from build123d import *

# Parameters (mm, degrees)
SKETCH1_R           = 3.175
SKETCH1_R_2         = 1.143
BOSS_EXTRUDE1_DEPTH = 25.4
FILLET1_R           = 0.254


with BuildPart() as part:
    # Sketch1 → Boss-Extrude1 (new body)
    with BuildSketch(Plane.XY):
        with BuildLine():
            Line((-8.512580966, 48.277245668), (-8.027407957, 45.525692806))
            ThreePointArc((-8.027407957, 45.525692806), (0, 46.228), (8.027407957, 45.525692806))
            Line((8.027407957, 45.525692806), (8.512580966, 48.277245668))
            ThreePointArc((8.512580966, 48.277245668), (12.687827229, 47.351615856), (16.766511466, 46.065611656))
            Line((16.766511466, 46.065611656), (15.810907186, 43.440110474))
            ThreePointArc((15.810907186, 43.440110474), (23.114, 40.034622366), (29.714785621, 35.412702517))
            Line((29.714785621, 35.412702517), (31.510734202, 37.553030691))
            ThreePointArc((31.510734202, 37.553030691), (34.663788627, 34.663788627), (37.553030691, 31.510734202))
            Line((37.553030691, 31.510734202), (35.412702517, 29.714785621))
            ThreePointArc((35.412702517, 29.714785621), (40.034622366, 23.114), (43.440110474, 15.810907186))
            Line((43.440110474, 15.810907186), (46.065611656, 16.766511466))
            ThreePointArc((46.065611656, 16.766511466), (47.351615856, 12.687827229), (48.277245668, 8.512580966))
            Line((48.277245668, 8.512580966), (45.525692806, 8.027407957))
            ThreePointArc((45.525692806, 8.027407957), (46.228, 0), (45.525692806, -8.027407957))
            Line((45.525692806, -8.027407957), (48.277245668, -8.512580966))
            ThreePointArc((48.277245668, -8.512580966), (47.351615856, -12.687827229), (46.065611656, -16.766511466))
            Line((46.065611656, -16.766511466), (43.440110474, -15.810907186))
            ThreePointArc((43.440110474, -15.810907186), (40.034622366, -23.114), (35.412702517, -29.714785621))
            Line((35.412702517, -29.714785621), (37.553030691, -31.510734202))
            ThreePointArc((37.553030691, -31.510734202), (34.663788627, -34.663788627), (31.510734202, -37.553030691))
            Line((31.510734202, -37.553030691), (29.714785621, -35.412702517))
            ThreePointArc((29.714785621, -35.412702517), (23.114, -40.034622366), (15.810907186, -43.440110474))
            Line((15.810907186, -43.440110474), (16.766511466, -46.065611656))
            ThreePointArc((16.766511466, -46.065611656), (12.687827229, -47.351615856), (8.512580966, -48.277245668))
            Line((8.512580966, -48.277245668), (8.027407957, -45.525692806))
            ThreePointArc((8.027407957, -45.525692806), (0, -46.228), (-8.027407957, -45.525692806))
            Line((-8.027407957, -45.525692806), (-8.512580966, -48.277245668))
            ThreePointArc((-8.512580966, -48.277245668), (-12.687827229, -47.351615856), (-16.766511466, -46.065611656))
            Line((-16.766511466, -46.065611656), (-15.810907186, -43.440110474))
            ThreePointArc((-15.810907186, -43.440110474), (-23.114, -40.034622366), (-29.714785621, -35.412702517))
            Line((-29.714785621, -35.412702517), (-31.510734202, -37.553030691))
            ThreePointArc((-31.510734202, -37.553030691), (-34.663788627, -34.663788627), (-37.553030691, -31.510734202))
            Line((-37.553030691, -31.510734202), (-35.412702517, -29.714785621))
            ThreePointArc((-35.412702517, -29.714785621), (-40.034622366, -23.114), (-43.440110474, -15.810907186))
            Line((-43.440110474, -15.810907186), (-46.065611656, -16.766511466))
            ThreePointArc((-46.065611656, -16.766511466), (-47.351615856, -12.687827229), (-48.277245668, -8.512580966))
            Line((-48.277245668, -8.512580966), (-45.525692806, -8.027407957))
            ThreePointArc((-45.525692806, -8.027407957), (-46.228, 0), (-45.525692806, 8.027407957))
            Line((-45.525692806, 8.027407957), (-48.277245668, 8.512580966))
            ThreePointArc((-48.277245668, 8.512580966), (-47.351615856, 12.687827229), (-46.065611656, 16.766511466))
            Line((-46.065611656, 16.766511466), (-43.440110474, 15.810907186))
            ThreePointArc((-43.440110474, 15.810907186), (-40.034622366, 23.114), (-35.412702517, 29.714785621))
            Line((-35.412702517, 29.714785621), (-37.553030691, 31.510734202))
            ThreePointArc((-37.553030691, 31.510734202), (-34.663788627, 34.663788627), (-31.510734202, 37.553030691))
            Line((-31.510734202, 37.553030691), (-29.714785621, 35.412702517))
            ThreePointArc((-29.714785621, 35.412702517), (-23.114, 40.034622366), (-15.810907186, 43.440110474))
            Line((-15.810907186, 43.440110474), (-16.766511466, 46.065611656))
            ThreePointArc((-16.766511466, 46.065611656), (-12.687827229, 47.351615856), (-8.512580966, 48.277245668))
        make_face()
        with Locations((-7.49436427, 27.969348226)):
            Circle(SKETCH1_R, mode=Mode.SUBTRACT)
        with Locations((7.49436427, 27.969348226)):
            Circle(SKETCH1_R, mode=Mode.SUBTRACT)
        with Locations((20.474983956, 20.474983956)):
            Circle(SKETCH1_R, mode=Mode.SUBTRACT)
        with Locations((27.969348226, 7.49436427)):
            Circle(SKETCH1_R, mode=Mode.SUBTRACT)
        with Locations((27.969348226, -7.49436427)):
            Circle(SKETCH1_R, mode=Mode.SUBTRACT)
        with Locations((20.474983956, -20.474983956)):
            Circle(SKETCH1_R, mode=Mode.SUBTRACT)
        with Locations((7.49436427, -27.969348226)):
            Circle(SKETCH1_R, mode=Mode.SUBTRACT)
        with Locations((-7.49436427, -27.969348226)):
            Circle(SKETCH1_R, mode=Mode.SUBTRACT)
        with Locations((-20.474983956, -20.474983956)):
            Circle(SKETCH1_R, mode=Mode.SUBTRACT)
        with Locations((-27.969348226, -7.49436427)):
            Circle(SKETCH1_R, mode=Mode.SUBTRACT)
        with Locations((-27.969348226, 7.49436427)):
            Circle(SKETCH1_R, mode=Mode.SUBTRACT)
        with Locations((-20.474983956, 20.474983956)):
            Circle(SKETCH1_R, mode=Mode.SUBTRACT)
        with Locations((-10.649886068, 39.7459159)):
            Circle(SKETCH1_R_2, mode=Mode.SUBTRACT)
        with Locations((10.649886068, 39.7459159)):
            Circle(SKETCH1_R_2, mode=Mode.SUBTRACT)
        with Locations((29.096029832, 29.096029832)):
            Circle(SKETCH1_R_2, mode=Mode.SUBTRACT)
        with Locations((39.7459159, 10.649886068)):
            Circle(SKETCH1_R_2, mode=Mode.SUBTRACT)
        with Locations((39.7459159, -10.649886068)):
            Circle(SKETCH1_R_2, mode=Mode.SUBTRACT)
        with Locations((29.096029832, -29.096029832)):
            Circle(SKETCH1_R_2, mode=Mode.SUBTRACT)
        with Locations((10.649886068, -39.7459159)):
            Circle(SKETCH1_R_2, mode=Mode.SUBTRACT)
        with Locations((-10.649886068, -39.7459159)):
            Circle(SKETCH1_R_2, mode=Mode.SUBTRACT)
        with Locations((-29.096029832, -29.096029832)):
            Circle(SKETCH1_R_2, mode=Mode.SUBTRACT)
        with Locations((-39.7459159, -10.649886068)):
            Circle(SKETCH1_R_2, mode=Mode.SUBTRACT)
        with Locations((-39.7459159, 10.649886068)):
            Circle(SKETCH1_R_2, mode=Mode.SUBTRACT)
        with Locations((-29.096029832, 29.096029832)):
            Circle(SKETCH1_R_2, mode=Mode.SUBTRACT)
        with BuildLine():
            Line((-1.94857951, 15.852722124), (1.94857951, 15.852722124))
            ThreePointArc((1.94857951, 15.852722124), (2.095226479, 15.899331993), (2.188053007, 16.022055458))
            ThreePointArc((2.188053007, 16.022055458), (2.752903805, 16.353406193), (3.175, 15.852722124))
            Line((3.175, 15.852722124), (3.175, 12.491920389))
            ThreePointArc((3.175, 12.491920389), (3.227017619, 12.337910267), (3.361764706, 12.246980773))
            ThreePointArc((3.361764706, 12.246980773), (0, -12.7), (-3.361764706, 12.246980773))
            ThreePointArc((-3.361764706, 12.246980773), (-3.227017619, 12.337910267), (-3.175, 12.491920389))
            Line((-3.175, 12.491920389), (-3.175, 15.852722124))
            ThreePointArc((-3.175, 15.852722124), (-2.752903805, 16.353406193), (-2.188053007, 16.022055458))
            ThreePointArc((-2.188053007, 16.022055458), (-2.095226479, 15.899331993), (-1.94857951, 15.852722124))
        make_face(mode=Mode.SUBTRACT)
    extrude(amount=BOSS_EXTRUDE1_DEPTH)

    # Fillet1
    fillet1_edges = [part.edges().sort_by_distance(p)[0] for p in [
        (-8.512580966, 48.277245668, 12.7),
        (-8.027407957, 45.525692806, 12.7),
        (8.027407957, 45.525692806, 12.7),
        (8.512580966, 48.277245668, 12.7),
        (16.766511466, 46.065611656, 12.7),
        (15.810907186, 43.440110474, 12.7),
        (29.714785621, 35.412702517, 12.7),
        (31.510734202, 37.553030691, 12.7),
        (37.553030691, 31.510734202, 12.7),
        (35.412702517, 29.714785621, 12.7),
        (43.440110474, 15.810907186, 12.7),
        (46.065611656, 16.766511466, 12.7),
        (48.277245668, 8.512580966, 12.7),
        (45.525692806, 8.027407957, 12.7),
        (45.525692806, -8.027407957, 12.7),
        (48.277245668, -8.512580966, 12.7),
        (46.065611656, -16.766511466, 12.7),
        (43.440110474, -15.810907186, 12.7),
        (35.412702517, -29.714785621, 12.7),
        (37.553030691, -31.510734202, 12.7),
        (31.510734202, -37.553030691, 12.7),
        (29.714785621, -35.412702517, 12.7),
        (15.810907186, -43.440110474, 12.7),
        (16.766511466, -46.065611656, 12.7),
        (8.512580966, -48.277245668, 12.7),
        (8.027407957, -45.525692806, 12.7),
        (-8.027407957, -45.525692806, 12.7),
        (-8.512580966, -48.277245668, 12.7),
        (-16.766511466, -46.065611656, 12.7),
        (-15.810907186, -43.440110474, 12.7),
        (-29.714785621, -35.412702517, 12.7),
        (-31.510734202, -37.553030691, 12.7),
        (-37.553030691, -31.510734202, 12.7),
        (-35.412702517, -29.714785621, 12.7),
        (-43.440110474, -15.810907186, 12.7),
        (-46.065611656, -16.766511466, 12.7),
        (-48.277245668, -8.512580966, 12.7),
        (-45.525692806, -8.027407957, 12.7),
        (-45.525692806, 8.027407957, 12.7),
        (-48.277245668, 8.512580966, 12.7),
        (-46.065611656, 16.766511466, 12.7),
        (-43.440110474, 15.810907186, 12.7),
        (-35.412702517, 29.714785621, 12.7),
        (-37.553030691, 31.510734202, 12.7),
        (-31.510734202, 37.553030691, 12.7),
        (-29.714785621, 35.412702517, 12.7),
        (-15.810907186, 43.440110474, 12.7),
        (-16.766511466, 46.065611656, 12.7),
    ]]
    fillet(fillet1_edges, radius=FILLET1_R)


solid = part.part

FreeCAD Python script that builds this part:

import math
import FreeCAD as App
import Part
import Sketcher
Q = App.Units.Quantity


def edges_at(feature, points):
    """Names of the edges that pass closest to the given points."""
    edges = feature.Shape.Edges
    near = lambda p: min(range(len(edges)), key=lambda i: edges[i].distToShape(Part.Vertex(*p))[0])
    return sorted({f"Edge{near(p) + 1}" for p in points})

doc = App.newDocument("Part")
body = doc.addObject("PartDesign::Body", "Body")

sketch1 = doc.addObject("Sketcher::SketchObject", "Sketch")
body.addObject(sketch1)
sketch1.AttachmentSupport = (doc.XY_Plane, [""])
sketch1.MapMode = "FlatFace"
sketch1.addGeometry([
    Part.LineSegment(App.Vector(-8.03, 45.53, 0), App.Vector(-8.51, 48.28, 0)),
    Part.ArcOfCircle(Part.Circle(App.Vector(0, 0, 0), App.Vector(0, 0, 1), 49.02), math.radians(100), math.radians(110)),
    Part.LineSegment(App.Vector(-16.77, 46.07, 0), App.Vector(-15.81, 43.44, 0)),
    Part.ArcOfCircle(Part.Circle(App.Vector(0, 0, 0), App.Vector(0, 0, 1), 46.23), math.radians(110), math.radians(130)),
    Part.LineSegment(App.Vector(-29.71, 35.41, 0), App.Vector(-31.51, 37.55, 0)),
    Part.ArcOfCircle(Part.Circle(App.Vector(0, 0, 0), App.Vector(0, 0, 1), 49.02), math.radians(130), math.radians(140)),
    Part.LineSegment(App.Vector(-37.55, 31.51, 0), App.Vector(-35.41, 29.71, 0)),
    Part.ArcOfCircle(Part.Circle(App.Vector(0, 0, 0), App.Vector(0, 0, 1), 46.23), math.radians(140), math.radians(160)),
    Part.LineSegment(App.Vector(-43.44, 15.81, 0), App.Vector(-46.07, 16.77, 0)),
    Part.ArcOfCircle(Part.Circle(App.Vector(0, 0, 0), App.Vector(0, 0, 1), 49.02), math.radians(160), math.radians(170)),
    Part.LineSegment(App.Vector(-48.28, 8.51, 0), App.Vector(-45.53, 8.03, 0)),
    Part.ArcOfCircle(Part.Circle(App.Vector(0, 0, 0), App.Vector(0, 0, 1), 46.23), math.radians(170), math.radians(190)),
    Part.LineSegment(App.Vector(-45.53, -8.03, 0), App.Vector(-48.28, -8.51, 0)),
    Part.ArcOfCircle(Part.Circle(App.Vector(0, 0, 0), App.Vector(0, 0, 1), 49.02), math.radians(-170), math.radians(-160)),
    Part.LineSegment(App.Vector(-46.07, -16.77, 0), App.Vector(-43.44, -15.81, 0)),
    Part.ArcOfCircle(Part.Circle(App.Vector(0, 0, 0), App.Vector(0, 0, 1), 46.23), math.radians(-160), math.radians(-140)),
    Part.LineSegment(App.Vector(-35.41, -29.71, 0), App.Vector(-37.55, -31.51, 0)),
    Part.ArcOfCircle(Part.Circle(App.Vector(0, 0, 0), App.Vector(0, 0, 1), 49.02), math.radians(-140), math.radians(-130)),
    Part.LineSegment(App.Vector(-31.51, -37.55, 0), App.Vector(-29.71, -35.41, 0)),
    Part.ArcOfCircle(Part.Circle(App.Vector(0, 0, 0), App.Vector(0, 0, 1), 46.23), math.radians(-130), math.radians(-110)),
    Part.LineSegment(App.Vector(-15.81, -43.44, 0), App.Vector(-16.77, -46.07, 0)),
    Part.ArcOfCircle(Part.Circle(App.Vector(0, 0, 0), App.Vector(0, 0, 1), 49.02), math.radians(-110), math.radians(-100)),
    Part.LineSegment(App.Vector(-8.51, -48.28, 0), App.Vector(-8.03, -45.53, 0)),
    Part.ArcOfCircle(Part.Circle(App.Vector(0, 0, 0), App.Vector(0, 0, 1), 46.23), math.radians(-100), math.radians(-80)),
    Part.LineSegment(App.Vector(8.03, -45.53, 0), App.Vector(8.51, -48.28, 0)),
    Part.ArcOfCircle(Part.Circle(App.Vector(0, 0, 0), App.Vector(0, 0, 1), 49.02), math.radians(-80), math.radians(-70)),
    Part.LineSegment(App.Vector(16.77, -46.07, 0), App.Vector(15.81, -43.44, 0)),
    Part.ArcOfCircle(Part.Circle(App.Vector(0, 0, 0), App.Vector(0, 0, 1), 46.23), math.radians(-70), math.radians(-50)),
    Part.LineSegment(App.Vector(29.71, -35.41, 0), App.Vector(31.51, -37.55, 0)),
    Part.ArcOfCircle(Part.Circle(App.Vector(0, 0, 0), App.Vector(0, 0, 1), 49.02), math.radians(-50), math.radians(-40)),
    Part.LineSegment(App.Vector(37.55, -31.51, 0), App.Vector(35.41, -29.71, 0)),
    Part.ArcOfCircle(Part.Circle(App.Vector(0, 0, 0), App.Vector(0, 0, 1), 46.23), math.radians(-40), math.radians(-20)),
    Part.LineSegment(App.Vector(43.44, -15.81, 0), App.Vector(46.07, -16.77, 0)),
    Part.ArcOfCircle(Part.Circle(App.Vector(0, 0, 0), App.Vector(0, 0, 1), 49.02), math.radians(-20), math.radians(-10)),
    Part.LineSegment(App.Vector(48.28, -8.51, 0), App.Vector(45.53, -8.03, 0)),
    Part.ArcOfCircle(Part.Circle(App.Vector(0, 0, 0), App.Vector(0, 0, 1), 46.23), math.radians(-10), math.radians(10)),
    Part.LineSegment(App.Vector(45.53, 8.03, 0), App.Vector(48.28, 8.51, 0)),
    Part.ArcOfCircle(Part.Circle(App.Vector(0, 0, 0), App.Vector(0, 0, 1), 49.02), math.radians(10), math.radians(20)),
    Part.LineSegment(App.Vector(46.07, 16.77, 0), App.Vector(43.44, 15.81, 0)),
    Part.ArcOfCircle(Part.Circle(App.Vector(0, 0, 0), App.Vector(0, 0, 1), 46.23), math.radians(20), math.radians(40)),
    Part.LineSegment(App.Vector(35.41, 29.71, 0), App.Vector(37.55, 31.51, 0)),
    Part.ArcOfCircle(Part.Circle(App.Vector(0, 0, 0), App.Vector(0, 0, 1), 49.02), math.radians(40), math.radians(50)),
    Part.LineSegment(App.Vector(31.51, 37.55, 0), App.Vector(29.71, 35.41, 0)),
    Part.ArcOfCircle(Part.Circle(App.Vector(0, 0, 0), App.Vector(0, 0, 1), 46.23), math.radians(50), math.radians(70)),
    Part.LineSegment(App.Vector(15.81, 43.44, 0), App.Vector(16.77, 46.07, 0)),
    Part.ArcOfCircle(Part.Circle(App.Vector(0, 0, 0), App.Vector(0, 0, 1), 49.02), math.radians(70), math.radians(80)),
    Part.LineSegment(App.Vector(8.51, 48.28, 0), App.Vector(8.03, 45.53, 0)),
    Part.ArcOfCircle(Part.Circle(App.Vector(0, 0, 0), App.Vector(0, 0, 1), 46.23), math.radians(80), math.radians(100)),
    Part.Circle(App.Vector(29.1, -29.1, 0), App.Vector(0, 0, 1), 1.14),
    Part.Circle(App.Vector(20.47, -20.47, 0), App.Vector(0, 0, 1), 3.17),
    Part.Circle(App.Vector(10.65, -39.75, 0), App.Vector(0, 0, 1), 1.14),
    Part.Circle(App.Vector(7.49, -27.97, 0), App.Vector(0, 0, 1), 3.17),
    Part.Circle(App.Vector(39.75, -10.65, 0), App.Vector(0, 0, 1), 1.14),
    Part.Circle(App.Vector(27.97, -7.49, 0), App.Vector(0, 0, 1), 3.17),
    Part.Circle(App.Vector(-10.65, -39.75, 0), App.Vector(0, 0, 1), 1.14),
    Part.Circle(App.Vector(-7.49, -27.97, 0), App.Vector(0, 0, 1), 3.17),
    Part.Circle(App.Vector(-29.1, -29.1, 0), App.Vector(0, 0, 1), 1.14),
    Part.Circle(App.Vector(-20.47, -20.47, 0), App.Vector(0, 0, 1), 3.17),
    Part.Circle(App.Vector(-39.75, -10.65, 0), App.Vector(0, 0, 1), 1.14),
    Part.Circle(App.Vector(-27.97, -7.49, 0), App.Vector(0, 0, 1), 3.17),
    Part.Circle(App.Vector(27.97, 7.49, 0), App.Vector(0, 0, 1), 3.17),
    Part.Circle(App.Vector(39.75, 10.65, 0), App.Vector(0, 0, 1), 1.14),
    Part.Circle(App.Vector(20.47, 20.47, 0), App.Vector(0, 0, 1), 3.17),
    Part.Circle(App.Vector(29.1, 29.1, 0), App.Vector(0, 0, 1), 1.14),
    Part.Circle(App.Vector(7.49, 27.97, 0), App.Vector(0, 0, 1), 3.17),
    Part.Circle(App.Vector(10.65, 39.75, 0), App.Vector(0, 0, 1), 1.14),
    Part.LineSegment(App.Vector(-1.95, 15.85, 0), App.Vector(1.95, 15.85, 0)),
    Part.ArcOfCircle(Part.Circle(App.Vector(1.95, 16.11, 0), App.Vector(0, 0, 1), 0.25), math.radians(-90), math.radians(-19)),
    Part.ArcOfCircle(Part.Circle(App.Vector(2.67, 15.85, 0), App.Vector(0, 0, 1), 0.51), math.radians(0), math.radians(161)),
    Part.LineSegment(App.Vector(3.17, 15.85, 0), App.Vector(3.17, 12.49, 0)),
    Part.ArcOfCircle(Part.Circle(App.Vector(3.43, 12.49, 0), App.Vector(0, 0, 1), 0.25), math.radians(-180), math.radians(-105)),
    Part.ArcOfCircle(Part.Circle(App.Vector(0, 0, 0), App.Vector(0, 0, 1), 12.7), math.radians(105), math.radians(435)),
    Part.ArcOfCircle(Part.Circle(App.Vector(-3.43, 12.49, 0), App.Vector(0, 0, 1), 0.25), math.radians(-75), math.radians(0)),
    Part.LineSegment(App.Vector(-3.17, 12.49, 0), App.Vector(-3.17, 15.85, 0)),
    Part.ArcOfCircle(Part.Circle(App.Vector(-2.67, 15.85, 0), App.Vector(0, 0, 1), 0.51), math.radians(19), math.radians(180)),
    Part.ArcOfCircle(Part.Circle(App.Vector(-1.95, 16.11, 0), App.Vector(0, 0, 1), 0.25), math.radians(-161), math.radians(-90)),
    Part.Circle(App.Vector(-27.97, 7.49, 0), App.Vector(0, 0, 1), 3.17),
    Part.Circle(App.Vector(-39.75, 10.65, 0), App.Vector(0, 0, 1), 1.14),
    Part.Circle(App.Vector(-7.49, 27.97, 0), App.Vector(0, 0, 1), 3.17),
    Part.Circle(App.Vector(-10.65, 39.75, 0), App.Vector(0, 0, 1), 1.14),
    Part.Circle(App.Vector(-20.47, 20.47, 0), App.Vector(0, 0, 1), 3.17),
    Part.Circle(App.Vector(-29.1, 29.1, 0), App.Vector(0, 0, 1), 1.14),
], False)
sketch1.addConstraint([
    Sketcher.Constraint("Coincident", 0, 2, 1, 1),
    Sketcher.Constraint("Coincident", 1, 2, 2, 1),
    Sketcher.Constraint("Coincident", 2, 2, 3, 1),
    Sketcher.Constraint("Coincident", 3, 2, 4, 1),
    Sketcher.Constraint("Coincident", 4, 2, 5, 1),
    Sketcher.Constraint("Coincident", 5, 2, 6, 1),
    Sketcher.Constraint("Coincident", 6, 2, 7, 1),
    Sketcher.Constraint("Coincident", 7, 2, 8, 1),
    Sketcher.Constraint("Coincident", 8, 2, 9, 1),
    Sketcher.Constraint("Coincident", 9, 2, 10, 1),
    Sketcher.Constraint("Coincident", 10, 2, 11, 1),
    Sketcher.Constraint("Coincident", 11, 2, 12, 1),
    Sketcher.Constraint("Coincident", 12, 2, 13, 1),
    Sketcher.Constraint("Coincident", 13, 2, 14, 1),
    Sketcher.Constraint("Coincident", 14, 2, 15, 1),
    Sketcher.Constraint("Coincident", 15, 2, 16, 1),
    Sketcher.Constraint("Coincident", 16, 2, 17, 1),
    Sketcher.Constraint("Coincident", 17, 2, 18, 1),
    Sketcher.Constraint("Coincident", 18, 2, 19, 1),
    Sketcher.Constraint("Coincident", 19, 2, 20, 1),
    Sketcher.Constraint("Coincident", 20, 2, 21, 1),
    Sketcher.Constraint("Coincident", 21, 2, 22, 1),
    Sketcher.Constraint("Coincident", 22, 2, 23, 1),
    Sketcher.Constraint("Coincident", 23, 2, 24, 1),
    Sketcher.Constraint("Coincident", 24, 2, 25, 1),
    Sketcher.Constraint("Coincident", 25, 2, 26, 1),
    Sketcher.Constraint("Coincident", 26, 2, 27, 1),
    Sketcher.Constraint("Coincident", 27, 2, 28, 1),
    Sketcher.Constraint("Coincident", 28, 2, 29, 1),
    Sketcher.Constraint("Coincident", 29, 2, 30, 1),
    Sketcher.Constraint("Coincident", 30, 2, 31, 1),
    Sketcher.Constraint("Coincident", 31, 2, 32, 1),
    Sketcher.Constraint("Coincident", 32, 2, 33, 1),
    Sketcher.Constraint("Coincident", 33, 2, 34, 1),
    Sketcher.Constraint("Coincident", 34, 2, 35, 1),
    Sketcher.Constraint("Coincident", 35, 2, 36, 1),
    Sketcher.Constraint("Coincident", 36, 2, 37, 1),
    Sketcher.Constraint("Coincident", 37, 2, 38, 1),
    Sketcher.Constraint("Coincident", 38, 2, 39, 1),
    Sketcher.Constraint("Coincident", 39, 2, 40, 1),
    Sketcher.Constraint("Coincident", 40, 2, 41, 1),
    Sketcher.Constraint("Coincident", 41, 2, 42, 1),
    Sketcher.Constraint("Coincident", 42, 2, 43, 1),
    Sketcher.Constraint("Coincident", 43, 2, 44, 1),
    Sketcher.Constraint("Coincident", 44, 2, 45, 1),
    Sketcher.Constraint("Coincident", 45, 2, 46, 1),
    Sketcher.Constraint("Coincident", 46, 2, 47, 1),
    Sketcher.Constraint("Coincident", 47, 2, 0, 1),
    Sketcher.Constraint("Tangent", 66, 2, 67, 1),
    Sketcher.Constraint("Tangent", 67, 2, 68, 2),
    Sketcher.Constraint("Tangent", 68, 1, 69, 1),
    Sketcher.Constraint("Tangent", 69, 2, 70, 1),
    Sketcher.Constraint("Tangent", 70, 2, 71, 2),
    Sketcher.Constraint("Tangent", 71, 1, 72, 1),
    Sketcher.Constraint("Tangent", 72, 2, 73, 1),
    Sketcher.Constraint("Tangent", 73, 2, 74, 2),
    Sketcher.Constraint("Tangent", 74, 1, 75, 1),
    Sketcher.Constraint("Tangent", 75, 2, 66, 1),
    Sketcher.Constraint("Horizontal", 66),
    Sketcher.Constraint("Vertical", 69),
    Sketcher.Constraint("Vertical", 73),
    Sketcher.Constraint("Coincident", 1, 3, -1, 1),
    Sketcher.Constraint("Coincident", 3, 3, -1, 1),
    Sketcher.Constraint("Coincident", 5, 3, -1, 1),
    Sketcher.Constraint("Coincident", 7, 3, -1, 1),
    Sketcher.Constraint("Coincident", 9, 3, -1, 1),
    Sketcher.Constraint("Coincident", 11, 3, -1, 1),
    Sketcher.Constraint("Coincident", 13, 3, -1, 1),
    Sketcher.Constraint("Coincident", 15, 3, -1, 1),
    Sketcher.Constraint("Coincident", 17, 3, -1, 1),
    Sketcher.Constraint("Coincident", 19, 3, -1, 1),
    Sketcher.Constraint("Coincident", 21, 3, -1, 1),
    Sketcher.Constraint("Coincident", 23, 3, -1, 1),
    Sketcher.Constraint("Coincident", 25, 3, -1, 1),
    Sketcher.Constraint("Coincident", 27, 3, -1, 1),
    Sketcher.Constraint("Coincident", 29, 3, -1, 1),
    Sketcher.Constraint("Coincident", 31, 3, -1, 1),
    Sketcher.Constraint("Coincident", 33, 3, -1, 1),
    Sketcher.Constraint("Coincident", 35, 3, -1, 1),
    Sketcher.Constraint("Coincident", 37, 3, -1, 1),
    Sketcher.Constraint("Coincident", 39, 3, -1, 1),
    Sketcher.Constraint("Coincident", 41, 3, -1, 1),
    Sketcher.Constraint("Coincident", 43, 3, -1, 1),
    Sketcher.Constraint("Coincident", 45, 3, -1, 1),
    Sketcher.Constraint("Coincident", 47, 3, -1, 1),
    Sketcher.Constraint("Coincident", 71, 3, -1, 1),
    Sketcher.Constraint("Equal", 1, 5),
    Sketcher.Constraint("Equal", 3, 7),
    Sketcher.Constraint("Equal", 5, 9),
    Sketcher.Constraint("Equal", 7, 11),
    Sketcher.Constraint("Equal", 9, 13),
    Sketcher.Constraint("Equal", 11, 15),
    Sketcher.Constraint("Equal", 13, 17),
    Sketcher.Constraint("Equal", 15, 19),
    Sketcher.Constraint("Equal", 17, 21),
    Sketcher.Constraint("Equal", 19, 23),
    Sketcher.Constraint("Equal", 21, 25),
    Sketcher.Constraint("Equal", 23, 27),
    Sketcher.Constraint("Equal", 25, 29),
    Sketcher.Constraint("Equal", 27, 31),
    Sketcher.Constraint("Equal", 29, 33),
    Sketcher.Constraint("Equal", 31, 35),
    Sketcher.Constraint("Equal", 33, 37),
    Sketcher.Constraint("Equal", 35, 39),
    Sketcher.Constraint("Equal", 37, 41),
    Sketcher.Constraint("Equal", 39, 43),
    Sketcher.Constraint("Equal", 41, 45),
    Sketcher.Constraint("Equal", 43, 47),
    Sketcher.Constraint("Equal", 48, 50),
    Sketcher.Constraint("Equal", 49, 51),
    Sketcher.Constraint("Equal", 50, 52),
    Sketcher.Constraint("Equal", 51, 53),
    Sketcher.Constraint("Equal", 52, 54),
    Sketcher.Constraint("Equal", 53, 55),
    Sketcher.Constraint("Equal", 54, 56),
    Sketcher.Constraint("Equal", 55, 57),
    Sketcher.Constraint("Equal", 56, 58),
    Sketcher.Constraint("Equal", 57, 59),
    Sketcher.Constraint("Equal", 59, 60),
    Sketcher.Constraint("Equal", 58, 61),
    Sketcher.Constraint("Equal", 60, 62),
    Sketcher.Constraint("Equal", 61, 63),
    Sketcher.Constraint("Equal", 62, 64),
    Sketcher.Constraint("Equal", 63, 65),
    Sketcher.Constraint("Equal", 67, 70),
    Sketcher.Constraint("Equal", 70, 72),
    Sketcher.Constraint("Equal", 68, 74),
    Sketcher.Constraint("Equal", 72, 75),
    Sketcher.Constraint("Equal", 64, 76),
    Sketcher.Constraint("Equal", 65, 77),
    Sketcher.Constraint("Equal", 76, 78),
    Sketcher.Constraint("Equal", 77, 79),
    Sketcher.Constraint("Equal", 78, 80),
    Sketcher.Constraint("Equal", 79, 81),
    Sketcher.Constraint("Symmetric", 59, 3, 60, 3, -1, 1),
    Sketcher.Constraint("Symmetric", 58, 3, 61, 3, -1, 1),
    Sketcher.Constraint("Symmetric", 57, 3, 62, 3, -1, 1),
    Sketcher.Constraint("Symmetric", 56, 3, 63, 3, -1, 1),
    Sketcher.Constraint("Symmetric", 55, 3, 64, 3, -1, 1),
    Sketcher.Constraint("Symmetric", 54, 3, 65, 3, -1, 1),
    Sketcher.Constraint("Symmetric", 53, 3, 76, 3, -1, 1),
    Sketcher.Constraint("Symmetric", 52, 3, 77, 3, -1, 1),
    Sketcher.Constraint("Symmetric", 51, 3, 78, 3, -1, 1),
    Sketcher.Constraint("Symmetric", 50, 3, 79, 3, -1, 1),
    Sketcher.Constraint("Symmetric", 49, 3, 80, 3, -1, 1),
    Sketcher.Constraint("Symmetric", 48, 3, 81, 3, -1, 1),
    Sketcher.Constraint("Symmetric", 50, 3, 54, 3, -2),
    Sketcher.Constraint("Symmetric", 51, 3, 55, 3, -2),
    Sketcher.Constraint("Symmetric", 48, 3, 56, 3, -2),
    Sketcher.Constraint("Symmetric", 49, 3, 57, 3, -2),
    Sketcher.Constraint("Symmetric", 52, 3, 58, 3, -2),
    Sketcher.Constraint("Symmetric", 53, 3, 59, 3, -2),
    Sketcher.Constraint("Symmetric", 68, 3, 74, 3, -2),
    Sketcher.Constraint("Perpendicular", 0, 12),
    Sketcher.Constraint("Perpendicular", 2, 14),
    Sketcher.Constraint("Perpendicular", 4, 16),
    Sketcher.Constraint("Perpendicular", 6, 18),
    Sketcher.Constraint("Perpendicular", 8, 20),
    Sketcher.Constraint("Perpendicular", 10, 22),
    Sketcher.Constraint("Perpendicular", 12, 24),
    Sketcher.Constraint("Perpendicular", 14, 26),
    Sketcher.Constraint("Perpendicular", 16, 28),
    Sketcher.Constraint("Perpendicular", 18, 30),
    Sketcher.Constraint("Perpendicular", 20, 32),
    Sketcher.Constraint("Perpendicular", 22, 34),
    Sketcher.Constraint("Perpendicular", 24, 36),
    Sketcher.Constraint("Perpendicular", 26, 38),
    Sketcher.Constraint("Perpendicular", 28, 40),
    Sketcher.Constraint("Perpendicular", 30, 42),
    Sketcher.Constraint("Perpendicular", 32, 44),
    Sketcher.Constraint("Perpendicular", 34, 46),
    Sketcher.Constraint("Horizontal", 22, 2, 23, 2),
    Sketcher.Constraint("Horizontal", 21, 2, 24, 2),
    Sketcher.Constraint("Horizontal", 20, 2, 25, 2),
    Sketcher.Constraint("Horizontal", 19, 2, 26, 2),
    Sketcher.Constraint("Horizontal", 18, 2, 27, 2),
    Sketcher.Constraint("Horizontal", 17, 2, 28, 2),
    Sketcher.Constraint("Horizontal", 16, 2, 29, 2),
    Sketcher.Constraint("Horizontal", 14, 2, 31, 2),
    Sketcher.Constraint("Horizontal", 12, 2, 33, 2),
    Sketcher.Constraint("Horizontal", 10, 2, 35, 2),
    Sketcher.Constraint("Horizontal", 8, 2, 37, 2),
    Sketcher.Constraint("Horizontal", 6, 2, 39, 2),
    Sketcher.Constraint("Horizontal", 4, 2, 41, 2),
    Sketcher.Constraint("Horizontal", 2, 2, 43, 2),
    Sketcher.Constraint("Horizontal", 0, 2, 45, 2),
    Sketcher.Constraint("Horizontal", 74, 3, 66, 2),
    Sketcher.Constraint("Vertical", 10, 2, 11, 2),
    Sketcher.Constraint("Vertical", 8, 2, 13, 2),
    Sketcher.Constraint("Vertical", 6, 2, 15, 2),
    Sketcher.Constraint("Vertical", 4, 2, 17, 2),
    Sketcher.Constraint("Vertical", 2, 2, 19, 2),
    Sketcher.Constraint("Vertical", 0, 2, 21, 2),
    Sketcher.Constraint("Radius", 71, Q("0.5 in")),
    Sketcher.Constraint("Diameter", 48, Q("0.09 in")),
    Sketcher.Constraint("Diameter", 49, Q("0.25 in")),
    Sketcher.Constraint("Radius", 1, Q("1.93 in")),
    Sketcher.Constraint("Radius", 3, Q("1.82 in")),
    Sketcher.Constraint("Radius", 67, Q("0.01 in")),
    Sketcher.Constraint("Radius", 68, Q("0.02 in")),
    Sketcher.Constraint("Angle", 0, Q("100 deg")),
    Sketcher.Constraint("Angle", 2, Q("-70 deg")),
    Sketcher.Constraint("Angle", 4, Q("130 deg")),
    Sketcher.Constraint("DistanceX", -1, 1, 68, 3, Q("0.105 in")),
    Sketcher.Constraint("DistanceY", 69, 2, 69, 1, Q("3.360802 mm")),
    Sketcher.Constraint("DistanceY", 50, 3, -1, 1, Q("1.5647998 in")),
    Sketcher.Constraint("DistanceX", -1, 1, 52, 3, Q("1.5647998 in")),
    Sketcher.Constraint("DistanceX", -1, 1, 48, 3, Q("29.09603 mm")),
    Sketcher.Constraint("DistanceY", 48, 3, -1, 1, Q("29.09603 mm")),
    Sketcher.Constraint("DistanceY", 51, 3, -1, 1, Q("27.969348 mm")),
    Sketcher.Constraint("DistanceX", -1, 1, 53, 3, Q("27.969348 mm")),
    Sketcher.Constraint("DistanceX", 0, 2, -1, 1, Q("8.512581 mm")),
    Sketcher.Constraint("DistanceX", 1, 2, -1, 1, Q("16.766511 mm")),
    Sketcher.Constraint("DistanceY", -1, 1, 4, 2, Q("37.553031 mm")),
    Sketcher.Constraint("DistanceX", 5, 2, -1, 1, Q("37.553031 mm")),
    Sketcher.Constraint("DistanceX", 7, 2, -1, 1, Q("43.44011 mm")),
    Sketcher.Constraint("DistanceY", -1, 1, 9, 2, Q("8.512581 mm")),
    Sketcher.Constraint("DistanceX", -1, 1, 49, 3, Q("20.474984 mm")),
    Sketcher.Constraint("DistanceY", 49, 3, -1, 1, Q("20.474984 mm")),
    Sketcher.Constraint("DistanceX", -1, 1, 50, 3, Q("10.649886 mm")),
    Sketcher.Constraint("DistanceX", -1, 1, 51, 3, Q("7.494364 mm")),
    Sketcher.Constraint("DistanceY", 52, 3, -1, 1, Q("10.649886 mm")),
    Sketcher.Constraint("DistanceY", 53, 3, -1, 1, Q("7.494364 mm")),
])
pad1 = doc.addObject("PartDesign::Pad", "Pad")
body.addObject(pad1)
pad1.Profile = sketch1
pad1.Length = Q("1 in")
doc.recompute()

fillet = doc.addObject("PartDesign::Fillet", "Fillet")
body.addObject(fillet)
fillet.Base = (pad1, edges_at(pad1, [
    (-8.513, 48.277, 12.7),
    (-8.027, 45.526, 12.7),
    (8.027, 45.526, 12.7),
    (8.513, 48.277, 12.7),
    (16.767, 46.066, 12.7),
    (15.811, 43.44, 12.7),
    (29.715, 35.413, 12.7),
    (31.511, 37.553, 12.7),
    (37.553, 31.511, 12.7),
    (35.413, 29.715, 12.7),
    (43.44, 15.811, 12.7),
    (46.066, 16.767, 12.7),
    (48.277, 8.513, 12.7),
    (45.526, 8.027, 12.7),
    (45.526, -8.027, 12.7),
    (48.277, -8.513, 12.7),
    (46.066, -16.767, 12.7),
    (43.44, -15.811, 12.7),
    (35.413, -29.715, 12.7),
    (37.553, -31.511, 12.7),
    (31.511, -37.553, 12.7),
    (29.715, -35.413, 12.7),
    (15.811, -43.44, 12.7),
    (16.767, -46.066, 12.7),
    (8.513, -48.277, 12.7),
    (8.027, -45.526, 12.7),
    (-8.027, -45.526, 12.7),
    (-8.513, -48.277, 12.7),
    (-16.767, -46.066, 12.7),
    (-15.811, -43.44, 12.7),
    (-29.715, -35.413, 12.7),
    (-31.511, -37.553, 12.7),
    (-37.553, -31.511, 12.7),
    (-35.413, -29.715, 12.7),
    (-43.44, -15.811, 12.7),
    (-46.066, -16.767, 12.7),
    (-48.277, -8.513, 12.7),
    (-45.526, -8.027, 12.7),
    (-45.526, 8.027, 12.7),
    (-48.277, 8.513, 12.7),
    (-46.066, 16.767, 12.7),
    (-43.44, 15.811, 12.7),
    (-35.413, 29.715, 12.7),
    (-37.553, 31.511, 12.7),
    (-31.511, 37.553, 12.7),
    (-29.715, 35.413, 12.7),
    (-15.811, 43.44, 12.7),
    (-16.767, 46.066, 12.7),
]))
fillet.Radius = Q("0.01 in")

doc.recompute()
